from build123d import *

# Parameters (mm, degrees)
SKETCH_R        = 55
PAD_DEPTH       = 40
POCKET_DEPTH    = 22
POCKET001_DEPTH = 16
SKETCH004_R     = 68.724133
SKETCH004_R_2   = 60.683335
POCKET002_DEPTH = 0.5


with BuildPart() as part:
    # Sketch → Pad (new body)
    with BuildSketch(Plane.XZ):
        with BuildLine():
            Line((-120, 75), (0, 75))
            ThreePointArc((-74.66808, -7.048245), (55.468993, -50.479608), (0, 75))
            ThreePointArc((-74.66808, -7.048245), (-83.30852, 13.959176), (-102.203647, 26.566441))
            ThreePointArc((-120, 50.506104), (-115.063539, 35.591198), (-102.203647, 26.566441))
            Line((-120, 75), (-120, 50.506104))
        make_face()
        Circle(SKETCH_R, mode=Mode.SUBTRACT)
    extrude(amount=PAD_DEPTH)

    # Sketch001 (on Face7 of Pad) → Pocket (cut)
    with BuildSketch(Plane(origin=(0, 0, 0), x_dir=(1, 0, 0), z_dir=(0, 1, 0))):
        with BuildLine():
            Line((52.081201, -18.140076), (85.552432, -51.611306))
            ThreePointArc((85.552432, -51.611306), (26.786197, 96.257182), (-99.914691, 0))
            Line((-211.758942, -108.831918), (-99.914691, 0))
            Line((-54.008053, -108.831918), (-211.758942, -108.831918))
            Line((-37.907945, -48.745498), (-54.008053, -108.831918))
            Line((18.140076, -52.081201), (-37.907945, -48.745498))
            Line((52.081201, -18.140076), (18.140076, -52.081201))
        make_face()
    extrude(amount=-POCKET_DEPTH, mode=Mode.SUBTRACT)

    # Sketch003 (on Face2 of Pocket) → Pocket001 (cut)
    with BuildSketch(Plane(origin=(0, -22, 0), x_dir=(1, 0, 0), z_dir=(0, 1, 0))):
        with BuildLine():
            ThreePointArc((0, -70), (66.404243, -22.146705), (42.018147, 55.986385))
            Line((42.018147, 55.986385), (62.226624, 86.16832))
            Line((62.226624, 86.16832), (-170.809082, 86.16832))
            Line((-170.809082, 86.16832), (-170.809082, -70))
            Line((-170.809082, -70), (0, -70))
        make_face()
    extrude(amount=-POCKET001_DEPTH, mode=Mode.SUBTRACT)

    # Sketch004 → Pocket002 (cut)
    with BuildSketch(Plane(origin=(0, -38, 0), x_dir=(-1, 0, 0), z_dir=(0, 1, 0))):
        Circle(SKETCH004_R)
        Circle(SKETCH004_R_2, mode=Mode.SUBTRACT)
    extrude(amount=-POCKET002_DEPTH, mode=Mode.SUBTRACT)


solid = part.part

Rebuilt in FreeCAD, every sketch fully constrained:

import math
import FreeCAD as App
import Part
import Sketcher

V = App.Vector
Q = App.Units.Quantity

doc = App.newDocument("Part")
body = doc.addObject("PartDesign::Body", "Body")

sketch1 = body.newObject("Sketcher::SketchObject", "Sketch")
sketch1.AttachmentSupport = (doc.getObject("XZ_Plane"), [""])
sketch1.MapMode = "FlatFace"
sketch1.addGeometry(Part.LineSegment(V(0, 75, 0), V(-120, 75, 0)), False)
sketch1.addGeometry(Part.LineSegment(V(-120, 75, 0), V(-120, 50.506104, 0)), False)
sketch1.addGeometry(Part.ArcOfCircle(Part.Circle(V(-95.000002, 50.506103, 0), V(0, 0, 1), 24.999998), math.radians(179.999997), math.radians(253.253018)), False)
sketch1.addGeometry(Part.ArcOfCircle(Part.Circle(V(-113.419282, -10.706141, 0), V(0, 0, 1), 38.923461), math.radians(5.392422), math.radians(73.253015)), False)
sketch1.addGeometry(Part.ArcOfCircle(Part.Circle(V(0, 0, 0), V(0, 0, 1), 75), math.radians(-174.60758), math.radians(90)), False)
sketch1.addGeometry(Part.Circle(V(0, 0, 0), V(0, 0, 1), 55), False)
sketch1.addConstraint(Sketcher.Constraint("Coincident", 0, 2, 1, 1))
sketch1.addConstraint(Sketcher.Constraint("Tangent", 1, 2, 2, 1))
sketch1.addConstraint(Sketcher.Constraint("Tangent", 2, 2, 3, 2))
sketch1.addConstraint(Sketcher.Constraint("Tangent", 3, 1, 4, 1))
sketch1.addConstraint(Sketcher.Constraint("Tangent", 4, 2, 0, 1))
sketch1.addConstraint(Sketcher.Constraint("Horizontal", 0))
sketch1.addConstraint(Sketcher.Constraint("Vertical", 1))
sketch1.addConstraint(Sketcher.Constraint("Coincident", 4, 3, -1, 1))
sketch1.addConstraint(Sketcher.Constraint("Coincident", 5, 3, -1, 1))
sketch1.addConstraint(Sketcher.Constraint("Diameter", 5, 110.0))
sketch1.addConstraint(Sketcher.Constraint("Radius", 2, 24.999998))
sketch1.addConstraint(Sketcher.Constraint("Radius", 4, 75.0))
sketch1.addConstraint(Sketcher.Constraint("DistanceX", 0, 2, 0, 1, 120.0))
sketch1.addConstraint(Sketcher.Constraint("Radius", 3, 38.923461))
sketch1.addConstraint(Sketcher.Constraint("DistanceX", 3, 3, 3, 1, 38.751202))
pad1 = body.newObject("PartDesign::Pad", "Pad")
pad1.Profile = sketch1
pad1.Length = 40

sketch2 = body.newObject("Sketcher::SketchObject", "Sketch001")
sketch2.AttachmentSupport = (doc.getObject("XZ_Plane"), [""])
sketch2.MapMode = "FlatFace"
sketch2.addGeometry(Part.LineSegment(V(52.081201, 18.140076, 0), V(85.552432, 51.611306, 0)), False)
sketch2.addGeometry(Part.ArcOfCircle(Part.Circle(V(0, 0, 0), V(0, 0, 1), 99.914691), math.radians(-180), math.radians(31.101365)), False)
sketch2.addGeometry(Part.LineSegment(V(-99.914691, 0, 0), V(-211.758942, 108.831918, 0)), False)
sketch2.addGeometry(Part.LineSegment(V(-211.758942, 108.831918, 0), V(-54.008053, 108.831918, 0)), False)
sketch2.addGeometry(Part.LineSegment(V(-54.008053, 108.831918, 0), V(-37.907945, 48.745498, 0)), False)
sketch2.addGeometry(Part.LineSegment(V(-37.907945, 48.745498, 0), V(18.140076, 52.081201, 0)), False)
sketch2.addGeometry(Part.LineSegment(V(18.140076, 52.081201, 0), V(52.081201, 18.140076, 0)), False)
sketch2.addConstraint(Sketcher.Constraint("Coincident", 0, 2, 1, 2))
sketch2.addConstraint(Sketcher.Constraint("Coincident", 1, 1, 2, 1))
sketch2.addConstraint(Sketcher.Constraint("Coincident", 2, 2, 3, 1))
sketch2.addConstraint(Sketcher.Constraint("Coincident", 3, 2, 4, 1))
sketch2.addConstraint(Sketcher.Constraint("Coincident", 4, 2, 5, 1))
sketch2.addConstraint(Sketcher.Constraint("Coincident", 5, 2, 6, 1))
sketch2.addConstraint(Sketcher.Constraint("Coincident", 6, 2, 0, 1))
sketch2.addConstraint(Sketcher.Constraint("Horizontal", 3))
sketch2.addConstraint(Sketcher.Constraint("Coincident", 1, 3, -1, 1))
sketch2.addConstraint(Sketcher.Constraint("PointOnObject", 1, 1, -1))
sketch2.addConstraint(Sketcher.Constraint("Perpendicular", 0, 6))
sketch2.addConstraint(Sketcher.Constraint("Angle", 0, Q("44.999999 deg")))
sketch2.addConstraint(Sketcher.Constraint("Angle", 4, Q("-75 deg")))
sketch2.addConstraint(Sketcher.Constraint("Distance", 6, 47.999999))
sketch2.addConstraint(Sketcher.Constraint("Radius", 1, 99.914691))
sketch2.addConstraint(Sketcher.Constraint("DistanceX", 3, 1, 3, 2, 157.750889))
sketch2.addConstraint(Sketcher.Constraint("DistanceY", -1, 1, 5, 2, 52.081201))
sketch2.addConstraint(Sketcher.Constraint("DistanceX", -1, 1, 6, 2, 52.081201))
sketch2.addConstraint(Sketcher.Constraint("Distance", 4, 62.206039))
sketch2.addConstraint(Sketcher.Constraint("DistanceX", 2, 2, -1, 1, 211.758942))
sketch2.addConstraint(Sketcher.Constraint("DistanceY", -1, 1, 2, 2, 108.831918))
pocket1 = body.newObject("PartDesign::Pocket", "Pocket")
pocket1.Profile = sketch2
pocket1.Length = 22
pocket1.Reversed = True

sketch3 = body.newObject("Sketcher::SketchObject", "Sketch002")
sketch3.AttachmentSupport = (doc.getObject("XZ_Plane"), [""])
sketch3.MapMode = "FlatFace"
sketch3.AttachmentOffset = App.Placement(V(0, 0, 22), App.Rotation())
sketch3.addGeometry(Part.ArcOfCircle(Part.Circle(V(0, 0, 0), V(0, 0, 1), 70), math.radians(-53.111533), math.radians(90)), False)
sketch3.addGeometry(Part.LineSegment(V(42.018147, -55.986385, 0), V(62.226624, -86.16832, 0)), False)
sketch3.addGeometry(Part.LineSegment(V(62.226624, -86.16832, 0), V(-170.809082, -86.16832, 0)), False)
sketch3.addGeometry(Part.LineSegment(V(-170.809082, -86.16832, 0), V(-170.809082, 70, 0)), False)
sketch3.addGeometry(Part.LineSegment(V(-170.809082, 70, 0), V(0, 70, 0)), False)
sketch3.addConstraint(Sketcher.Constraint("Coincident", 0, 1, 1, 1))
sketch3.addConstraint(Sketcher.Constraint("Coincident", 1, 2, 2, 1))
sketch3.addConstraint(Sketcher.Constraint("Coincident", 2, 2, 3, 1))
sketch3.addConstraint(Sketcher.Constraint("Coincident", 3, 2, 4, 1))
sketch3.addConstraint(Sketcher.Constraint("Tangent", 4, 2, 0, 2))
sketch3.addConstraint(Sketcher.Constraint("Horizontal", 2))
sketch3.addConstraint(Sketcher.Constraint("Vertical", 3))
sketch3.addConstraint(Sketcher.Constraint("Horizontal", 4))
sketch3.addConstraint(Sketcher.Constraint("Coincident", 0, 3, -1, 1))
sketch3.addConstraint(Sketcher.Constraint("Radius", 0, 70.0))
sketch3.addConstraint(Sketcher.Constraint("DistanceX", 4, 1, 4, 2, 170.809082))
sketch3.addConstraint(Sketcher.Constraint("DistanceY", 3, 1, 3, 2, 156.16832))
sketch3.addConstraint(Sketcher.Constraint("DistanceX", 2, 2, 2, 1, 233.035706))
sketch3.addConstraint(Sketcher.Constraint("DistanceX", 2, 2, 0, 1, 212.827229))
pocket2 = body.newObject("PartDesign::Pocket", "Pocket001")
pocket2.Profile = sketch3
pocket2.Length = 16
pocket2.Reversed = True

sketch4 = body.newObject("Sketcher::SketchObject", "Sketch003")
sketch4.AttachmentSupport = (doc.getObject("XZ_Plane"), [""])
sketch4.MapMode = "FlatFace"
sketch4.AttachmentOffset = App.Placement(V(0, 0, 38), App.Rotation())
sketch4.addGeometry(Part.Circle(V(0, 0, 0), V(0, 0, 1), 68.724133), False)
sketch4.addGeometry(Part.Circle(V(0, 0, 0), V(0, 0, 1), 60.683335), False)
sketch4.addConstraint(Sketcher.Constraint("Coincident", 0, 3, -1, 1))
sketch4.addConstraint(Sketcher.Constraint("Coincident", 1, 3, -1, 1))
sketch4.addConstraint(Sketcher.Constraint("Diameter", 1, 121.36667))
sketch4.addConstraint(Sketcher.Constraint("Diameter", 0, 137.448266))
pocket3 = body.newObject("PartDesign::Pocket", "Pocket002")
pocket3.Profile = sketch4
pocket3.Length = 0.5
pocket3.Reversed = True

doc.recompute()
